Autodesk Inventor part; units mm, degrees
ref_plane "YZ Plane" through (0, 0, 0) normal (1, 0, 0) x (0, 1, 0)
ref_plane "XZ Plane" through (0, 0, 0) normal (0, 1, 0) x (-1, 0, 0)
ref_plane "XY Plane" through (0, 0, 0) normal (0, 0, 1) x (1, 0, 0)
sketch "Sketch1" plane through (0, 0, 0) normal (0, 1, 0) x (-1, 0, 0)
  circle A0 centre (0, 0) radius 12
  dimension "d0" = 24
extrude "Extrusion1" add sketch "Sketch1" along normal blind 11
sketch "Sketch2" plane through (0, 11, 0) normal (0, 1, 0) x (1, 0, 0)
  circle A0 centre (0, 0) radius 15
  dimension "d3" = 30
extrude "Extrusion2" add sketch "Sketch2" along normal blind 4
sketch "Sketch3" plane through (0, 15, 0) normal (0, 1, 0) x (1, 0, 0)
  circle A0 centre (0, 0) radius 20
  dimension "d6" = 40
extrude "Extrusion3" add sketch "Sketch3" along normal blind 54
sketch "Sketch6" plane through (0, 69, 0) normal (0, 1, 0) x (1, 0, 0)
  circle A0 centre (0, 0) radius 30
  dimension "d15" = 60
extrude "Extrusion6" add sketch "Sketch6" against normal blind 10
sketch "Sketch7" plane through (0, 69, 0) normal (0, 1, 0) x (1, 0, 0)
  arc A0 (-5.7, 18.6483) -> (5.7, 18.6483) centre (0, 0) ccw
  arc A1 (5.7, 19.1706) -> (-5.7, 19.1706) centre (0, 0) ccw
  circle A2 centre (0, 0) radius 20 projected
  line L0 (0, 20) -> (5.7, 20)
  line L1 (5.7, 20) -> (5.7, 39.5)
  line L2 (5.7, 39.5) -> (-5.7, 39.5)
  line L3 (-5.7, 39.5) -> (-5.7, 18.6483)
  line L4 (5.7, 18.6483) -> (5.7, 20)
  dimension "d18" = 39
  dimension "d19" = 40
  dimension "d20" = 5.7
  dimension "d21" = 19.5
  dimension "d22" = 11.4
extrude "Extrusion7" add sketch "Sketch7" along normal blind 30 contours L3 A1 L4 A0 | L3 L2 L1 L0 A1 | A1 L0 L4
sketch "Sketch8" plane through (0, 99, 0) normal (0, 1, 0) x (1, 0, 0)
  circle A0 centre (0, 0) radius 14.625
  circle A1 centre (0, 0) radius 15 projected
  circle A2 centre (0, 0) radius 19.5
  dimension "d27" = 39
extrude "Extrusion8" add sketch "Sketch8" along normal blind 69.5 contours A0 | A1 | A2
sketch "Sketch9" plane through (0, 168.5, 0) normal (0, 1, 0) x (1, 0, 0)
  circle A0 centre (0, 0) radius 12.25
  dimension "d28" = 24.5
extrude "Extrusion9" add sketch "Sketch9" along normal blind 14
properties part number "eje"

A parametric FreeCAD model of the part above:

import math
import FreeCAD as App
import Part
import Sketcher
from FreeCAD import Vector
Q = App.Units.Quantity

doc = App.newDocument("Part")
body = doc.addObject("PartDesign::Body", "Body")

# Sketch on XZ plane
sketch1 = body.newObject("Sketcher::SketchObject", "Sketch")
sketch1.AttachmentSupport = (doc.getObject("XZ_Plane"), [""])
sketch1.MapMode = "FlatFace"
sketch1.addGeometry(Part.Circle(Vector(0, 0, 0), Vector(0, 0, 1), 12), False)
sketch1.addConstraint([
    Sketcher.Constraint("Coincident", 0, 3, -1, 1),
    Sketcher.Constraint("Diameter", 0, Q("24 mm")),
])
pad1 = body.newObject("PartDesign::Pad", "Pad")
pad1.Profile = sketch1
pad1.Length = 11
pad1.Reversed = True

# Sketch on XZ plane
sketch2 = body.newObject("Sketcher::SketchObject", "Sketch001")
sketch2.AttachmentSupport = (doc.getObject("XZ_Plane"), [""])
sketch2.MapMode = "FlatFace"
sketch2.AttachmentOffset = App.Placement(Vector(0, 0, -11), App.Rotation())
sketch2.addGeometry(Part.Circle(Vector(0, 0, 0), Vector(0, 0, 1), 15), False)
sketch2.addConstraint([
    Sketcher.Constraint("Coincident", 0, 3, -1, 1),
    Sketcher.Constraint("Diameter", 0, Q("30 mm")),
])
pad2 = body.newObject("PartDesign::Pad", "Pad001")
pad2.Profile = sketch2
pad2.Length = 4
pad2.Reversed = True

# Sketch on XZ plane
sketch3 = body.newObject("Sketcher::SketchObject", "Sketch002")
sketch3.AttachmentSupport = (doc.getObject("XZ_Plane"), [""])
sketch3.MapMode = "FlatFace"
sketch3.AttachmentOffset = App.Placement(Vector(0, 0, -15), App.Rotation())
sketch3.addGeometry(Part.Circle(Vector(0, 0, 0), Vector(0, 0, 1), 20), False)
sketch3.addConstraint([
    Sketcher.Constraint("Coincident", 0, 3, -1, 1),
    Sketcher.Constraint("Diameter", 0, Q("40 mm")),
])
pad3 = body.newObject("PartDesign::Pad", "Pad002")
pad3.Profile = sketch3
pad3.Length = 54
pad3.Reversed = True

# Sketch on XZ plane
sketch4 = body.newObject("Sketcher::SketchObject", "Sketch003")
sketch4.AttachmentSupport = (doc.getObject("XZ_Plane"), [""])
sketch4.MapMode = "FlatFace"
sketch4.AttachmentOffset = App.Placement(Vector(0, 0, -69), App.Rotation())
sketch4.addGeometry(Part.Circle(Vector(0, 0, 0), Vector(0, 0, 1), 30), False)
sketch4.addConstraint([
    Sketcher.Constraint("Coincident", 0, 3, -1, 1),
    Sketcher.Constraint("Diameter", 0, Q("60 mm")),
])
pad4 = body.newObject("PartDesign::Pad", "Pad003")
pad4.Profile = sketch4
pad4.Length = 10

# Sketch on XZ plane
sketch5 = body.newObject("Sketcher::SketchObject", "Sketch004")
sketch5.AttachmentSupport = (doc.getObject("XZ_Plane"), [""])
sketch5.MapMode = "FlatFace"
sketch5.AttachmentOffset = App.Placement(Vector(0, 0, -69), App.Rotation())
sketch5.addGeometry([
    Part.ArcOfCircle(Part.Circle(Vector(0, 0, 0), Vector(0, 0, 1), 19), math.radians(-73), math.radians(253)),
    Part.LineSegment(Vector(6, -19, 0), Vector(6, -40, 0)),
    Part.LineSegment(Vector(6, -40, 0), Vector(-6, -40, 0)),
    Part.LineSegment(Vector(-6, -40, 0), Vector(-6, -19, 0)),
], False)
sketch5.addConstraint([
    Sketcher.Constraint("Coincident", 0, 1, 1, 1),
    Sketcher.Constraint("Coincident", 1, 2, 2, 1),
    Sketcher.Constraint("Coincident", 2, 2, 3, 1),
    Sketcher.Constraint("Coincident", 3, 2, 0, 2),
    Sketcher.Constraint("Vertical", 1),
    Sketcher.Constraint("Horizontal", 2),
    Sketcher.Constraint("Vertical", 3),
    Sketcher.Constraint("Coincident", 0, 3, -1, 1),
    Sketcher.Constraint("Horizontal", 0, 1, 3, 2),
    Sketcher.Constraint("Radius", 0, Q("19.5 mm")),
    Sketcher.Constraint("DistanceX", 2, 2, 2, 1, Q("11.4 mm")),
    Sketcher.Constraint("DistanceY", 1, 2, -1, 1, Q("39.5 mm")),
])
pad5 = body.newObject("PartDesign::Pad", "Pad004")
pad5.Profile = sketch5
pad5.Length = 30
pad5.Reversed = True

# Sketch on XZ plane
sketch6 = body.newObject("Sketcher::SketchObject", "Sketch005")
sketch6.AttachmentSupport = (doc.getObject("XZ_Plane"), [""])
sketch6.MapMode = "FlatFace"
sketch6.AttachmentOffset = App.Placement(Vector(0, 0, -99), App.Rotation())
sketch6.addGeometry(Part.Circle(Vector(0, 0, 0), Vector(0, 0, 1), 20), False)
sketch6.addConstraint([
    Sketcher.Constraint("Coincident", 0, 3, -1, 1),
    Sketcher.Constraint("Diameter", 0, Q("39 mm")),
])
pad6 = body.newObject("PartDesign::Pad", "Pad005")
pad6.Profile = sketch6
pad6.Length = 69.5
pad6.Reversed = True

# Sketch on XZ plane
sketch7 = body.newObject("Sketcher::SketchObject", "Sketch006")
sketch7.AttachmentSupport = (doc.getObject("XZ_Plane"), [""])
sketch7.MapMode = "FlatFace"
sketch7.AttachmentOffset = App.Placement(Vector(0, 0, -168.5), App.Rotation())
sketch7.addGeometry(Part.Circle(Vector(0, 0, 0), Vector(0, 0, 1), 12), False)
sketch7.addConstraint([
    Sketcher.Constraint("Coincident", 0, 3, -1, 1),
    Sketcher.Constraint("Diameter", 0, Q("24.5 mm")),
])
pad7 = body.newObject("PartDesign::Pad", "Pad006")
pad7.Profile = sketch7
pad7.Length = 14
pad7.Reversed = True

doc.recompute()
